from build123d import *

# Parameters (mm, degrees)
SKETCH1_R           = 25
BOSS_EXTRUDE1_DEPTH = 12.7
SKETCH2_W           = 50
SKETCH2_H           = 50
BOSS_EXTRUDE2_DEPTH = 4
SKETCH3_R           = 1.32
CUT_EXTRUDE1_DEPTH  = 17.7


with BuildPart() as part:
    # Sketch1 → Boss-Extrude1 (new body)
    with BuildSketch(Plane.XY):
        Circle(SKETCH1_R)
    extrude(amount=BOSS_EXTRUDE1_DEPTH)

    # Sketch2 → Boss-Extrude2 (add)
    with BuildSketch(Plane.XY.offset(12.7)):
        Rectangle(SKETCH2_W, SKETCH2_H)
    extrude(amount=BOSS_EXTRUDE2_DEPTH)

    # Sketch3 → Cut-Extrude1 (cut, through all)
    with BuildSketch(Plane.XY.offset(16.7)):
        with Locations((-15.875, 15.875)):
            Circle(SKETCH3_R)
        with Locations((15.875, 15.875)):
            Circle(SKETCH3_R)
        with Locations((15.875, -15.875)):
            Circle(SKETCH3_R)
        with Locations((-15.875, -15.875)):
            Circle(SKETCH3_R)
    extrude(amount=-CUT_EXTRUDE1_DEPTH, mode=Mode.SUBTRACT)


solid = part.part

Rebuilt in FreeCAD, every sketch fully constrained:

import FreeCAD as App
import Part
import Sketcher

V = App.Vector
Q = App.Units.Quantity


def add_polygon(sketch, points):
    """Adds a closed chain of lines whose ends are joined by coincident constraints."""
    first, n = sketch.GeometryCount, len(points)
    for a, b in zip(points, points[1:] + points[:1]):
        sketch.addGeometry(Part.LineSegment(App.Vector(*a, 0), App.Vector(*b, 0)), False)
    for i in range(n):
        sketch.addConstraint(Sketcher.Constraint("Coincident", first + i, 2, first + (i + 1) % n, 1))

doc = App.newDocument("Part")
body = doc.addObject("PartDesign::Body", "Body")

sketch1 = doc.addObject("Sketcher::SketchObject", "Sketch")
body.addObject(sketch1)
sketch1.AttachmentSupport = (doc.XY_Plane, [""])
sketch1.MapMode = "FlatFace"
sketch1.addGeometry(Part.Circle(V(0, 0, 0), V(0, 0, 1), 25), False)
sketch1.addConstraint(Sketcher.Constraint("Coincident", 0, 3, -1, 1))
sketch1.addConstraint(Sketcher.Constraint("Diameter", 0, Q("50 mm")))
pad1 = doc.addObject("PartDesign::Pad", "Pad")
body.addObject(pad1)
pad1.Profile = sketch1
pad1.Length = 12.7

sketch2 = doc.addObject("Sketcher::SketchObject", "Sketch001")
body.addObject(sketch2)
sketch2.AttachmentSupport = (doc.XY_Plane, [""])
sketch2.MapMode = "FlatFace"
sketch2.AttachmentOffset = App.Placement(V(0, 0, 12.7), App.Rotation())
add_polygon(sketch2, [(-25, 25), (-25, -25), (25, -25), (25, 25)])
sketch2.addConstraint(Sketcher.Constraint("Vertical", 0))
sketch2.addConstraint(Sketcher.Constraint("Horizontal", 1))
sketch2.addConstraint(Sketcher.Constraint("Vertical", 2))
sketch2.addConstraint(Sketcher.Constraint("Horizontal", 3))
sketch2.addConstraint(Sketcher.Constraint("Symmetric", 0, 2, 2, 2, -1, 1))
sketch2.addConstraint(Sketcher.Constraint("Equal", 3, 0))
sketch2.addConstraint(Sketcher.Constraint("DistanceX", 1, 1, 1, 2, Q("50 mm")))
pad2 = doc.addObject("PartDesign::Pad", "Pad001")
body.addObject(pad2)
pad2.Profile = sketch2
pad2.Length = 4

sketch3 = doc.addObject("Sketcher::SketchObject", "Sketch002")
body.addObject(sketch3)
sketch3.AttachmentSupport = (doc.XY_Plane, [""])
sketch3.MapMode = "FlatFace"
sketch3.AttachmentOffset = App.Placement(V(0, 0, 16.7), App.Rotation())
sketch3.addGeometry(Part.Circle(V(-15.9, 15.9, 0), V(0, 0, 1), 1.3), False)
sketch3.addGeometry(Part.Circle(V(15.9, 15.9, 0), V(0, 0, 1), 1.3), False)
sketch3.addGeometry(Part.Circle(V(15.9, -15.9, 0), V(0, 0, 1), 1.3), False)
sketch3.addGeometry(Part.Circle(V(-15.9, -15.9, 0), V(0, 0, 1), 1.3), False)
sketch3.addConstraint(Sketcher.Constraint("Equal", 0, 1))
sketch3.addConstraint(Sketcher.Constraint("Equal", 1, 2))
sketch3.addConstraint(Sketcher.Constraint("Equal", 2, 3))
sketch3.addConstraint(Sketcher.Constraint("Symmetric", 0, 3, 2, 3, -1, 1))
sketch3.addConstraint(Sketcher.Constraint("Symmetric", 1, 3, 3, 3, -1, 1))
sketch3.addConstraint(Sketcher.Constraint("Symmetric", 0, 3, 1, 3, -2))
sketch3.addConstraint(Sketcher.Constraint("Diameter", 0, Q("2.64 mm")))
sketch3.addConstraint(Sketcher.Constraint("DistanceX", 0, 3, 1, 3, Q("31.75 mm")))
sketch3.addConstraint(Sketcher.Constraint("DistanceY", 2, 3, 1, 3, Q("31.75 mm")))
pocket1 = doc.addObject("PartDesign::Pocket", "Pocket")
body.addObject(pocket1)
pocket1.Profile = sketch3
pocket1.Type = "ThroughAll"

doc.recompute()
